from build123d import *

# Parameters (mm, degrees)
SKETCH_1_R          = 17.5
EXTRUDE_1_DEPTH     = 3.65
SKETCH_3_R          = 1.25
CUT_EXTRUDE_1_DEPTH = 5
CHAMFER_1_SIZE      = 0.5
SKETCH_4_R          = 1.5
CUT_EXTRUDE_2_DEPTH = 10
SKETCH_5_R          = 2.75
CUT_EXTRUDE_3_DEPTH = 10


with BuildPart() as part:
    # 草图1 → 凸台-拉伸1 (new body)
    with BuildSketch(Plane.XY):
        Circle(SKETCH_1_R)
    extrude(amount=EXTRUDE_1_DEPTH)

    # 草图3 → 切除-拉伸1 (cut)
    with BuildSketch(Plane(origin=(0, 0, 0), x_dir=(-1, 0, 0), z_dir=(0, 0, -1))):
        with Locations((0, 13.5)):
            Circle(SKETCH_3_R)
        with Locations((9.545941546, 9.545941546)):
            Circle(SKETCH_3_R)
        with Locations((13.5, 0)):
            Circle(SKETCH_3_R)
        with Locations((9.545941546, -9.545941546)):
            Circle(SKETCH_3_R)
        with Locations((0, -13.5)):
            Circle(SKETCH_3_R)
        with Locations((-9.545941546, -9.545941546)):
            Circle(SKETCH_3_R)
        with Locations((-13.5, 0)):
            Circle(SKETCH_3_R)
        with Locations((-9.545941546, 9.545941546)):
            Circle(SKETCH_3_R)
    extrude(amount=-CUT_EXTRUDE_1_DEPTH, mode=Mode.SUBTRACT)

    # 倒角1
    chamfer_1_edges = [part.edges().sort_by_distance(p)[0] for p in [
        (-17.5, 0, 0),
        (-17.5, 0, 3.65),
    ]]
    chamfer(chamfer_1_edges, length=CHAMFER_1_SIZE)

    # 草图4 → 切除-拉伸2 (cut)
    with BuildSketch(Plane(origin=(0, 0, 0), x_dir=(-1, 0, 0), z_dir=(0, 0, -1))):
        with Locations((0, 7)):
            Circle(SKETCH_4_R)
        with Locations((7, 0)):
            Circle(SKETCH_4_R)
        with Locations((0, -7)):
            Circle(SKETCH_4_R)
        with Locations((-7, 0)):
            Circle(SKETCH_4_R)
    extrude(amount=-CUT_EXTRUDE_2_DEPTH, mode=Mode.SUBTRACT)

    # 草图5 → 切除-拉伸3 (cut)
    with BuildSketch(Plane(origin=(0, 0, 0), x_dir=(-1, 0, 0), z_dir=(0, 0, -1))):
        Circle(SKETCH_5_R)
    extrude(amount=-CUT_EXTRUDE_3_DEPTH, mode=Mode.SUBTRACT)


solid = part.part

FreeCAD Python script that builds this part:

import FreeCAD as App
import Part
import Sketcher


def edges_at(feature, points):
    """Names of the edges that pass closest to the given points."""
    edges = feature.Shape.Edges
    near = lambda p: min(range(len(edges)), key=lambda i: edges[i].distToShape(Part.Vertex(*p))[0])
    return sorted({f"Edge{near(p) + 1}" for p in points})

doc = App.newDocument("Part")
params = doc.addObject("Spreadsheet::Sheet", "Params")
for row, (alias, value) in enumerate([
    ("sketch1_diameter", "35 mm"),
    ("pad1_length", "3.65 mm"),
    ("sketch2_diameter", "2.5 mm"),
    ("pocket1_length", "5 mm"),
    ("chamfer_size", "0.5 mm"),
    ("sketch3_diameter", "3 mm"),
    ("pocket2_length", "10 mm"),
    ("sketch4_diameter", "5.5 mm"),
    ("pocket3_length", "10 mm"),
], start=1):
    params.set(f"A{row}", alias)
    params.set(f"B{row}", "=" + value)
    params.setAlias(f"B{row}", alias)

body = doc.addObject("PartDesign::Body", "Body")

# Sketch on XY plane
sketch1 = doc.addObject("Sketcher::SketchObject", "Sketch")
body.addObject(sketch1)
sketch1.AttachmentSupport = (doc.XY_Plane, [""])
sketch1.MapMode = "FlatFace"
sketch1.addGeometry(Part.Circle(App.Vector(0, 0, 0), App.Vector(0, 0, 1), 18), False)
sketch1.addConstraint([
    Sketcher.Constraint("Coincident", 0, 3, -1, 1),
    Sketcher.Constraint("Diameter", 0, 35.0),
])
sketch1.setExpression("Constraints[1]", "Params.sketch1_diameter")
pad1 = doc.addObject("PartDesign::Pad", "Pad")
body.addObject(pad1)
pad1.Profile = sketch1
pad1.setExpression("Length", "Params.pad1_length")

# Sketch on XY plane
sketch2 = doc.addObject("Sketcher::SketchObject", "Sketch001")
body.addObject(sketch2)
sketch2.AttachmentSupport = (doc.XY_Plane, [""])
sketch2.MapMode = "FlatFace"
sketch2.addGeometry([
    Part.Circle(App.Vector(0, 13.5, 0), App.Vector(0, 0, 1), 1.2),  # 0
    Part.Circle(App.Vector(-9.5, 9.5, 0), App.Vector(0, 0, 1), 1.2),  # 1
    Part.Circle(App.Vector(-13.5, 0, 0), App.Vector(0, 0, 1), 1.2),  # 2
    Part.Circle(App.Vector(-9.5, -9.5, 0), App.Vector(0, 0, 1), 1.2),  # 3
    Part.Circle(App.Vector(0, -13.5, 0), App.Vector(0, 0, 1), 1.2),  # 4
    Part.Circle(App.Vector(9.5, -9.5, 0), App.Vector(0, 0, 1), 1.2),  # 5
    Part.Circle(App.Vector(13.5, 0, 0), App.Vector(0, 0, 1), 1.2),  # 6
    Part.Circle(App.Vector(9.5, 9.5, 0), App.Vector(0, 0, 1), 1.2),  # 7
], False)
sketch2.addConstraint([
    Sketcher.Constraint("Equal", 0, 1),
    Sketcher.Constraint("Equal", 1, 2),
    Sketcher.Constraint("Equal", 2, 3),
    Sketcher.Constraint("Equal", 3, 4),
    Sketcher.Constraint("Equal", 4, 5),
    Sketcher.Constraint("Equal", 5, 6),
    Sketcher.Constraint("Equal", 6, 7),
    Sketcher.Constraint("Symmetric", 0, 3, 4, 3, -1, 1),
    Sketcher.Constraint("Symmetric", 1, 3, 5, 3, -1, 1),
    Sketcher.Constraint("Symmetric", 2, 3, 6, 3, -1, 1),
    Sketcher.Constraint("Symmetric", 3, 3, 7, 3, -1, 1),
    Sketcher.Constraint("Symmetric", 3, 3, 5, 3, -2),
    Sketcher.Constraint("PointOnObject", 0, 3, -2),
    Sketcher.Constraint("PointOnObject", 2, 3, -1),
    Sketcher.Constraint("Diameter", 0, 2.5),
    Sketcher.Constraint("DistanceY", 4, 3, 0, 3, 27.0),
    Sketcher.Constraint("DistanceX", 2, 3, -1, 1, 13.5),
    Sketcher.Constraint("DistanceX", 1, 3, -1, 1, 9.545942),
    Sketcher.Constraint("DistanceY", -1, 1, 1, 3, 9.545942),
])
sketch2.setExpression("Constraints[14]", "Params.sketch2_diameter")
pocket1 = doc.addObject("PartDesign::Pocket", "Pocket")
body.addObject(pocket1)
pocket1.Profile = sketch2
pocket1.setExpression("Length", "Params.pocket1_length")
pocket1.Reversed = True
doc.recompute()

chamfer = doc.addObject("PartDesign::Chamfer", "Chamfer")
body.addObject(chamfer)
chamfer.Base = (pocket1, edges_at(pocket1, [(-17.5, 0, 0), (-17.5, 0, 3.65)]))
chamfer.setExpression("Size", "Params.chamfer_size")

# Sketch on XY plane
sketch3 = doc.addObject("Sketcher::SketchObject", "Sketch002")
body.addObject(sketch3)
sketch3.AttachmentSupport = (doc.XY_Plane, [""])
sketch3.MapMode = "FlatFace"
sketch3.addGeometry([
    Part.Circle(App.Vector(0, 7, 0), App.Vector(0, 0, 1), 1.5),
    Part.Circle(App.Vector(-7, 0, 0), App.Vector(0, 0, 1), 1.5),
    Part.Circle(App.Vector(0, -7, 0), App.Vector(0, 0, 1), 1.5),
    Part.Circle(App.Vector(7, 0, 0), App.Vector(0, 0, 1), 1.5),
], False)
sketch3.addConstraint([
    Sketcher.Constraint("Equal", 0, 1),
    Sketcher.Constraint("Equal", 1, 2),
    Sketcher.Constraint("Equal", 2, 3),
    Sketcher.Constraint("Symmetric", 0, 3, 2, 3, -1, 1),
    Sketcher.Constraint("Symmetric", 1, 3, 3, 3, -1, 1),
    Sketcher.Constraint("PointOnObject", 0, 3, -2),
    Sketcher.Constraint("PointOnObject", 1, 3, -1),
    Sketcher.Constraint("Diameter", 0, 3.0),
    Sketcher.Constraint("DistanceY", -1, 1, 0, 3, 7.0),
    Sketcher.Constraint("DistanceX", 1, 3, -1, 1, 7.0),
])
sketch3.setExpression("Constraints[7]", "Params.sketch3_diameter")
pocket2 = doc.addObject("PartDesign::Pocket", "Pocket001")
body.addObject(pocket2)
pocket2.Profile = sketch3
pocket2.setExpression("Length", "Params.pocket2_length")
pocket2.Reversed = True

# Sketch on XY plane
sketch4 = doc.addObject("Sketcher::SketchObject", "Sketch003")
body.addObject(sketch4)
sketch4.AttachmentSupport = (doc.XY_Plane, [""])
sketch4.MapMode = "FlatFace"
sketch4.addGeometry(Part.Circle(App.Vector(0, 0, 0), App.Vector(0, 0, 1), 2.8), False)
sketch4.addConstraint([
    Sketcher.Constraint("Coincident", 0, 3, -1, 1),
    Sketcher.Constraint("Diameter", 0, 5.5),
])
sketch4.setExpression("Constraints[1]", "Params.sketch4_diameter")
pocket3 = doc.addObject("PartDesign::Pocket", "Pocket002")
body.addObject(pocket3)
pocket3.Profile = sketch4
pocket3.setExpression("Length", "Params.pocket3_length")
pocket3.Reversed = True

doc.recompute()
